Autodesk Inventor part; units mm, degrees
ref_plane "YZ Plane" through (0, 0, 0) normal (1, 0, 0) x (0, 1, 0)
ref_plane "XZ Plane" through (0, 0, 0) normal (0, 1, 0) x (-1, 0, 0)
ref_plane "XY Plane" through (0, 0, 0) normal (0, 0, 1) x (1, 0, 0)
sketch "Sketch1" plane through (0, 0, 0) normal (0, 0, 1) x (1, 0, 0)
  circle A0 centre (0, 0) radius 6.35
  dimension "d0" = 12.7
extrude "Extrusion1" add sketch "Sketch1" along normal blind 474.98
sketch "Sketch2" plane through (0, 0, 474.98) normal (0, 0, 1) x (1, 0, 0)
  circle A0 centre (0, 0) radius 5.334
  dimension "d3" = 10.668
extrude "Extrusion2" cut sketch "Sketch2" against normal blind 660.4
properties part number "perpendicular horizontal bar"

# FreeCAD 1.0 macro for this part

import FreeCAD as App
import Part
import Sketcher
from FreeCAD import Vector
Q = App.Units.Quantity

doc = App.newDocument("Part")
params = doc.addObject("Spreadsheet::Sheet", "Params")
for row, (alias, value) in enumerate([
    ("sketch1_diameter", "0.5 in"),
    ("pad1_length", "18.7 in"),
    ("sketch2_diameter", "0.42 in"),
    ("pocket1_length", "26 in"),
], start=1):
    params.set(f"A{row}", alias)
    params.set(f"B{row}", "=" + value)
    params.setAlias(f"B{row}", alias)

body = doc.addObject("PartDesign::Body", "Body")

# Sketch on XY plane
sketch1 = body.newObject("Sketcher::SketchObject", "Sketch")
sketch1.AttachmentSupport = (doc.getObject("XY_Plane"), [""])
sketch1.MapMode = "FlatFace"
sketch1.addGeometry(Part.Circle(Vector(0, 0, 0), Vector(0, 0, 1), 6), False)
sketch1.addConstraint([
    Sketcher.Constraint("Coincident", 0, 3, -1, 1),
    Sketcher.Constraint("Diameter", 0, Q("0.5 in")),
])
sketch1.setExpression("Constraints[1]", "Params.sketch1_diameter")
pad1 = body.newObject("PartDesign::Pad", "Pad")
pad1.Profile = sketch1
pad1.setExpression("Length", "Params.pad1_length")

# Sketch on XY plane
sketch2 = body.newObject("Sketcher::SketchObject", "Sketch001")
sketch2.AttachmentSupport = (doc.getObject("XY_Plane"), [""])
sketch2.MapMode = "FlatFace"
sketch2.AttachmentOffset = App.Placement(Vector(0, 0, 18.7 * 25.4), App.Rotation())
sketch2.addGeometry(Part.Circle(Vector(0, 0, 0), Vector(0, 0, 1), 5), False)
sketch2.addConstraint([
    Sketcher.Constraint("Coincident", 0, 3, -1, 1),
    Sketcher.Constraint("Diameter", 0, Q("0.42 in")),
])
sketch2.setExpression("Constraints[1]", "Params.sketch2_diameter")
pocket1 = body.newObject("PartDesign::Pocket", "Pocket")
pocket1.Profile = sketch2
pocket1.setExpression("Length", "Params.pocket1_length")

doc.recompute()
